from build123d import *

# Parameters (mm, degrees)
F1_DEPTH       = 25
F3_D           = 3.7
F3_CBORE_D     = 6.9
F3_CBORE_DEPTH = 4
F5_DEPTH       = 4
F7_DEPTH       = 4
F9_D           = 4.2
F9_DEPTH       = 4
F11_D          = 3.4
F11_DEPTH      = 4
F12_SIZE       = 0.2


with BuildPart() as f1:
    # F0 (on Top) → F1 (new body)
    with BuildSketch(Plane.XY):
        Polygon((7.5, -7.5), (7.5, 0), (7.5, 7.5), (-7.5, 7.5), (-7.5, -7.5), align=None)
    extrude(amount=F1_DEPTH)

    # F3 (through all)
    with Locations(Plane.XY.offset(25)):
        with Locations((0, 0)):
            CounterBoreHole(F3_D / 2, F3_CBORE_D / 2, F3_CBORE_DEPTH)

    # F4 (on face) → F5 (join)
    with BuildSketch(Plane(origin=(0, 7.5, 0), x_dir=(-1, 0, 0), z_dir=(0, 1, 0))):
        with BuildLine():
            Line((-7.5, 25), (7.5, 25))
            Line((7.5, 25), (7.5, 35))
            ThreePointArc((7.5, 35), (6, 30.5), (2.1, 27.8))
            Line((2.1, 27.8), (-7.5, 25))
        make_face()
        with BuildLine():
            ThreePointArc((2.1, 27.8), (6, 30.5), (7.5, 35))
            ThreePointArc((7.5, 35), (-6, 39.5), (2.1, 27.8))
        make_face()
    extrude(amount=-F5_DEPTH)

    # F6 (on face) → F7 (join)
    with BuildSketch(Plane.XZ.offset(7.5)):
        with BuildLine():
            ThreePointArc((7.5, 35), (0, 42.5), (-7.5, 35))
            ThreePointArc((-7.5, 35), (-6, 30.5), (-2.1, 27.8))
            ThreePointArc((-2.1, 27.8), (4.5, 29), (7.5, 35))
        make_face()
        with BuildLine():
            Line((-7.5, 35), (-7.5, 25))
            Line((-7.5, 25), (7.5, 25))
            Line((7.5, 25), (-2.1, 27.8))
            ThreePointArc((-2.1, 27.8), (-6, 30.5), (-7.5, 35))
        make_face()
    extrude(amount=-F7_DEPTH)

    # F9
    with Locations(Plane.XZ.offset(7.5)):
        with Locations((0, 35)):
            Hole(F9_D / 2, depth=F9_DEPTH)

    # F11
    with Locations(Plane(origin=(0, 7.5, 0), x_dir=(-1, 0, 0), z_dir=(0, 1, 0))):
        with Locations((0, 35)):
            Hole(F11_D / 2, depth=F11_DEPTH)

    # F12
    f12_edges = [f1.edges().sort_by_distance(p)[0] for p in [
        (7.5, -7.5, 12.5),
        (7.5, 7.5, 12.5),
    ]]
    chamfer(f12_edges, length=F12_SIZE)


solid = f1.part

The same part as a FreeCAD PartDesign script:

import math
import FreeCAD as App
import Part
import Sketcher


def edges_at(feature, points):
    """Names of the edges that pass closest to the given points."""
    edges = feature.Shape.Edges
    near = lambda p: min(range(len(edges)), key=lambda i: edges[i].distToShape(Part.Vertex(*p))[0])
    return sorted({f"Edge{near(p) + 1}" for p in points})


def add_polygon(sketch, points):
    """Adds a closed chain of lines whose ends are joined by coincident constraints."""
    first, n = sketch.GeometryCount, len(points)
    for a, b in zip(points, points[1:] + points[:1]):
        sketch.addGeometry(Part.LineSegment(App.Vector(*a, 0), App.Vector(*b, 0)), False)
    for i in range(n):
        sketch.addConstraint(Sketcher.Constraint("Coincident", first + i, 2, first + (i + 1) % n, 1))

doc = App.newDocument("Part")
body = doc.addObject("PartDesign::Body", "Body")

# Sketch on XY plane
sketch1 = body.newObject("Sketcher::SketchObject", "Sketch")
sketch1.AttachmentSupport = (doc.getObject("XY_Plane"), [""])
sketch1.MapMode = "FlatFace"
add_polygon(sketch1, [(8, -8), (8, 8), (-8, 8), (-8, -8)])  # lines 0-3
sketch1.addConstraint([
    Sketcher.Constraint("Vertical", 0),
    Sketcher.Constraint("Horizontal", 1),
    Sketcher.Constraint("Vertical", 2),
    Sketcher.Constraint("Horizontal", 3),
    Sketcher.Constraint("Symmetric", 0, 2, 2, 2, -1, 1),
    Sketcher.Constraint("Equal", 3, 0),
    Sketcher.Constraint("DistanceX", 1, 2, 1, 1, 15.0),
])
pad1 = body.newObject("PartDesign::Pad", "Pad")
pad1.Profile = sketch1
pad1.Length = 25

# Sketch on XY plane
sketch2 = body.newObject("Sketcher::SketchObject", "Sketch001")
sketch2.AttachmentSupport = (doc.getObject("XY_Plane"), [""])
sketch2.MapMode = "FlatFace"
sketch2.AttachmentOffset = App.Placement(App.Vector(0, 0, 25), App.Rotation())
sketch2.addGeometry(Part.Circle(App.Vector(0, 0, 0), App.Vector(0, 0, 1), 1.9), False)
sketch2.addConstraint([
    Sketcher.Constraint("Coincident", 0, 3, -1, 1),
    Sketcher.Constraint("Diameter", 0, 3.7),
])
doc.recompute()
hole = body.newObject("PartDesign::Hole", "Hole")
hole.Profile = sketch2
hole.ThreadType = "None"
hole.Diameter = 3.7
hole.DepthType = "ThroughAll"
hole.HoleCutType = "Counterbore"
hole.HoleCutDiameter = 6.9
hole.HoleCutDepth = 4

# Sketch on XZ plane
sketch3 = body.newObject("Sketcher::SketchObject", "Sketch002")
sketch3.AttachmentSupport = (doc.getObject("XZ_Plane"), [""])
sketch3.MapMode = "FlatFace"
sketch3.AttachmentOffset = App.Placement(App.Vector(0, 0, -7.5), App.Rotation())
sketch3.addGeometry([
    Part.LineSegment(App.Vector(8, 25, 0), App.Vector(-8, 25, 0)),
    Part.LineSegment(App.Vector(-8, 25, 0), App.Vector(-8, 35, 0)),
    Part.ArcOfCircle(Part.Circle(App.Vector(0, 35, 0), App.Vector(0, 0, 1), 8), math.radians(-106), math.radians(180)),
    Part.LineSegment(App.Vector(-2, 28, 0), App.Vector(8, 25, 0)),
], False)
sketch3.addConstraint([
    Sketcher.Constraint("Coincident", 0, 2, 1, 1),
    Sketcher.Constraint("Tangent", 1, 2, 2, 2),
    Sketcher.Constraint("Tangent", 2, 1, 3, 1),
    Sketcher.Constraint("Coincident", 3, 2, 0, 1),
    Sketcher.Constraint("Horizontal", 0),
    Sketcher.Constraint("Vertical", 1),
    Sketcher.Constraint("PointOnObject", 2, 3, -2),
    Sketcher.Constraint("Radius", 2, 7.5),
    Sketcher.Constraint("DistanceX", 0, 2, 0, 1, 15.0),
    Sketcher.Constraint("DistanceY", 1, 1, 1, 2, 10.0),
    Sketcher.Constraint("DistanceY", -1, 1, 2, 3, 35.0),
])
pad2 = body.newObject("PartDesign::Pad", "Pad001")
pad2.Profile = sketch3
pad2.Length = 4

# Sketch on XZ plane
sketch4 = body.newObject("Sketcher::SketchObject", "Sketch003")
sketch4.AttachmentSupport = (doc.getObject("XZ_Plane"), [""])
sketch4.MapMode = "FlatFace"
sketch4.AttachmentOffset = App.Placement(App.Vector(0, 0, 7.5), App.Rotation())
sketch4.addGeometry([
    Part.ArcOfCircle(Part.Circle(App.Vector(0, 35, 0), App.Vector(0, 0, 1), 8), math.radians(-106), math.radians(180)),
    Part.LineSegment(App.Vector(-8, 35, 0), App.Vector(-8, 25, 0)),
    Part.LineSegment(App.Vector(-8, 25, 0), App.Vector(8, 25, 0)),
    Part.LineSegment(App.Vector(8, 25, 0), App.Vector(-2, 28, 0)),
], False)
sketch4.addConstraint([
    Sketcher.Constraint("Tangent", 0, 2, 1, 1),
    Sketcher.Constraint("Coincident", 1, 2, 2, 1),
    Sketcher.Constraint("Coincident", 2, 2, 3, 1),
    Sketcher.Constraint("Tangent", 3, 2, 0, 1),
    Sketcher.Constraint("Vertical", 1),
    Sketcher.Constraint("Horizontal", 2),
    Sketcher.Constraint("PointOnObject", 0, 3, -2),
    Sketcher.Constraint("Radius", 0, 7.5),
    Sketcher.Constraint("DistanceX", 2, 1, 2, 2, 15.0),
    Sketcher.Constraint("DistanceY", 1, 2, 1, 1, 10.0),
    Sketcher.Constraint("DistanceY", -1, 1, 0, 3, 35.0),
])
pad3 = body.newObject("PartDesign::Pad", "Pad002")
pad3.Profile = sketch4
pad3.Length = 4
pad3.Reversed = True

# Sketch on XZ plane
sketch5 = body.newObject("Sketcher::SketchObject", "Sketch004")
sketch5.AttachmentSupport = (doc.getObject("XZ_Plane"), [""])
sketch5.MapMode = "FlatFace"
sketch5.AttachmentOffset = App.Placement(App.Vector(0, 0, 7.5), App.Rotation())
sketch5.addGeometry(Part.Circle(App.Vector(0, 35, 0), App.Vector(0, 0, 1), 2.1), False)
sketch5.addConstraint([
    Sketcher.Constraint("PointOnObject", 0, 3, -2),
    Sketcher.Constraint("Diameter", 0, 4.2),
    Sketcher.Constraint("DistanceY", -1, 1, 0, 3, 35.0),
])
doc.recompute()
hole2 = body.newObject("PartDesign::Hole", "Hole001")
hole2.Profile = sketch5
hole2.ThreadType = "None"
hole2.Diameter = 4.2
hole2.DepthType = "Dimension"
hole2.Depth = 4
hole2.DrillPoint = "Flat"

# Sketch on XZ plane
sketch6 = body.newObject("Sketcher::SketchObject", "Sketch005")
sketch6.AttachmentSupport = (doc.getObject("XZ_Plane"), [""])
sketch6.MapMode = "FlatFace"
sketch6.AttachmentOffset = App.Placement(App.Vector(0, 0, -7.5), App.Rotation())
sketch6.addGeometry(Part.Circle(App.Vector(0, 35, 0), App.Vector(0, 0, 1), 1.7), False)
sketch6.addConstraint([
    Sketcher.Constraint("PointOnObject", 0, 3, -2),
    Sketcher.Constraint("Diameter", 0, 3.4),
    Sketcher.Constraint("DistanceY", -1, 1, 0, 3, 35.0),
])
doc.recompute()
hole3 = body.newObject("PartDesign::Hole", "Hole002")
hole3.Profile = sketch6
hole3.ThreadType = "None"
hole3.Diameter = 3.4
hole3.DepthType = "Dimension"
hole3.Depth = 4
hole3.DrillPoint = "Flat"
hole3.Reversed = True
doc.recompute()

chamfer = body.newObject("PartDesign::Chamfer", "Chamfer")
chamfer.Base = (hole3, edges_at(hole3, [(7.5, -7.5, 12.5), (7.5, 7.5, 12.5)]))
chamfer.Size = 0.2

doc.recompute()
